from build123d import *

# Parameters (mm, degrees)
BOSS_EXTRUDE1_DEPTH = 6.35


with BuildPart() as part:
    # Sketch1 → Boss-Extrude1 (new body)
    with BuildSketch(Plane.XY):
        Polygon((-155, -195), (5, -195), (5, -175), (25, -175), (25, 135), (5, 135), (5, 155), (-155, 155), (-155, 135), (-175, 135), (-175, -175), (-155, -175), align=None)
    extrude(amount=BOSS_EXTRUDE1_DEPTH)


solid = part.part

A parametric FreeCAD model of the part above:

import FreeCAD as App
import Part
import Sketcher

V = App.Vector
Q = App.Units.Quantity


def add_polygon(sketch, points):
    """Adds a closed chain of lines whose ends are joined by coincident constraints."""
    first, n = sketch.GeometryCount, len(points)
    for a, b in zip(points, points[1:] + points[:1]):
        sketch.addGeometry(Part.LineSegment(App.Vector(*a, 0), App.Vector(*b, 0)), False)
    for i in range(n):
        sketch.addConstraint(Sketcher.Constraint("Coincident", first + i, 2, first + (i + 1) % n, 1))

doc = App.newDocument("Part")
body = doc.addObject("PartDesign::Body", "Body")

sketch1 = body.newObject("Sketcher::SketchObject", "Sketch")
sketch1.AttachmentSupport = (doc.getObject("XY_Plane"), [""])
sketch1.MapMode = "FlatFace"
add_polygon(sketch1, [(-155, -195), (5, -195), (5, -175), (25, -175), (25, 135), (5, 135), (5, 155), (-155, 155), (-155, 135), (-175, 135), (-175, -175), (-155, -175)])
sketch1.addConstraint(Sketcher.Constraint("Horizontal", 0))
sketch1.addConstraint(Sketcher.Constraint("Vertical", 1))
sketch1.addConstraint(Sketcher.Constraint("Horizontal", 2))
sketch1.addConstraint(Sketcher.Constraint("Vertical", 3))
sketch1.addConstraint(Sketcher.Constraint("Horizontal", 4))
sketch1.addConstraint(Sketcher.Constraint("Vertical", 5))
sketch1.addConstraint(Sketcher.Constraint("Horizontal", 6))
sketch1.addConstraint(Sketcher.Constraint("Vertical", 7))
sketch1.addConstraint(Sketcher.Constraint("Horizontal", 8))
sketch1.addConstraint(Sketcher.Constraint("Vertical", 9))
sketch1.addConstraint(Sketcher.Constraint("Horizontal", 10))
sketch1.addConstraint(Sketcher.Constraint("Vertical", 11))
sketch1.addConstraint(Sketcher.Constraint("Horizontal", 4, 2, 7, 2))
sketch1.addConstraint(Sketcher.Constraint("Horizontal", 2, 2, 9, 2))
sketch1.addConstraint(Sketcher.Constraint("Vertical", 1, 2, 4, 2))
sketch1.addConstraint(Sketcher.Constraint("Vertical", 7, 2, 10, 2))
sketch1.addConstraint(Sketcher.Constraint("Equal", 4, 8))
sketch1.addConstraint(Sketcher.Constraint("Equal", 10, 1))
sketch1.addConstraint(Sketcher.Constraint("Equal", 1, 5))
sketch1.addConstraint(Sketcher.Constraint("DistanceX", 0, 1, 0, 2, Q("160 mm")))
sketch1.addConstraint(Sketcher.Constraint("DistanceX", 2, 1, 2, 2, Q("20 mm")))
sketch1.addConstraint(Sketcher.Constraint("DistanceY", 3, 1, 3, 2, Q("310 mm")))
sketch1.addConstraint(Sketcher.Constraint("DistanceX", -1, 1, 0, 2, Q("5 mm")))
sketch1.addConstraint(Sketcher.Constraint("DistanceY", 0, 2, -1, 1, Q("195 mm")))
pad1 = body.newObject("PartDesign::Pad", "Pad")
pad1.Profile = sketch1
pad1.Length = 6.35

doc.recompute()
